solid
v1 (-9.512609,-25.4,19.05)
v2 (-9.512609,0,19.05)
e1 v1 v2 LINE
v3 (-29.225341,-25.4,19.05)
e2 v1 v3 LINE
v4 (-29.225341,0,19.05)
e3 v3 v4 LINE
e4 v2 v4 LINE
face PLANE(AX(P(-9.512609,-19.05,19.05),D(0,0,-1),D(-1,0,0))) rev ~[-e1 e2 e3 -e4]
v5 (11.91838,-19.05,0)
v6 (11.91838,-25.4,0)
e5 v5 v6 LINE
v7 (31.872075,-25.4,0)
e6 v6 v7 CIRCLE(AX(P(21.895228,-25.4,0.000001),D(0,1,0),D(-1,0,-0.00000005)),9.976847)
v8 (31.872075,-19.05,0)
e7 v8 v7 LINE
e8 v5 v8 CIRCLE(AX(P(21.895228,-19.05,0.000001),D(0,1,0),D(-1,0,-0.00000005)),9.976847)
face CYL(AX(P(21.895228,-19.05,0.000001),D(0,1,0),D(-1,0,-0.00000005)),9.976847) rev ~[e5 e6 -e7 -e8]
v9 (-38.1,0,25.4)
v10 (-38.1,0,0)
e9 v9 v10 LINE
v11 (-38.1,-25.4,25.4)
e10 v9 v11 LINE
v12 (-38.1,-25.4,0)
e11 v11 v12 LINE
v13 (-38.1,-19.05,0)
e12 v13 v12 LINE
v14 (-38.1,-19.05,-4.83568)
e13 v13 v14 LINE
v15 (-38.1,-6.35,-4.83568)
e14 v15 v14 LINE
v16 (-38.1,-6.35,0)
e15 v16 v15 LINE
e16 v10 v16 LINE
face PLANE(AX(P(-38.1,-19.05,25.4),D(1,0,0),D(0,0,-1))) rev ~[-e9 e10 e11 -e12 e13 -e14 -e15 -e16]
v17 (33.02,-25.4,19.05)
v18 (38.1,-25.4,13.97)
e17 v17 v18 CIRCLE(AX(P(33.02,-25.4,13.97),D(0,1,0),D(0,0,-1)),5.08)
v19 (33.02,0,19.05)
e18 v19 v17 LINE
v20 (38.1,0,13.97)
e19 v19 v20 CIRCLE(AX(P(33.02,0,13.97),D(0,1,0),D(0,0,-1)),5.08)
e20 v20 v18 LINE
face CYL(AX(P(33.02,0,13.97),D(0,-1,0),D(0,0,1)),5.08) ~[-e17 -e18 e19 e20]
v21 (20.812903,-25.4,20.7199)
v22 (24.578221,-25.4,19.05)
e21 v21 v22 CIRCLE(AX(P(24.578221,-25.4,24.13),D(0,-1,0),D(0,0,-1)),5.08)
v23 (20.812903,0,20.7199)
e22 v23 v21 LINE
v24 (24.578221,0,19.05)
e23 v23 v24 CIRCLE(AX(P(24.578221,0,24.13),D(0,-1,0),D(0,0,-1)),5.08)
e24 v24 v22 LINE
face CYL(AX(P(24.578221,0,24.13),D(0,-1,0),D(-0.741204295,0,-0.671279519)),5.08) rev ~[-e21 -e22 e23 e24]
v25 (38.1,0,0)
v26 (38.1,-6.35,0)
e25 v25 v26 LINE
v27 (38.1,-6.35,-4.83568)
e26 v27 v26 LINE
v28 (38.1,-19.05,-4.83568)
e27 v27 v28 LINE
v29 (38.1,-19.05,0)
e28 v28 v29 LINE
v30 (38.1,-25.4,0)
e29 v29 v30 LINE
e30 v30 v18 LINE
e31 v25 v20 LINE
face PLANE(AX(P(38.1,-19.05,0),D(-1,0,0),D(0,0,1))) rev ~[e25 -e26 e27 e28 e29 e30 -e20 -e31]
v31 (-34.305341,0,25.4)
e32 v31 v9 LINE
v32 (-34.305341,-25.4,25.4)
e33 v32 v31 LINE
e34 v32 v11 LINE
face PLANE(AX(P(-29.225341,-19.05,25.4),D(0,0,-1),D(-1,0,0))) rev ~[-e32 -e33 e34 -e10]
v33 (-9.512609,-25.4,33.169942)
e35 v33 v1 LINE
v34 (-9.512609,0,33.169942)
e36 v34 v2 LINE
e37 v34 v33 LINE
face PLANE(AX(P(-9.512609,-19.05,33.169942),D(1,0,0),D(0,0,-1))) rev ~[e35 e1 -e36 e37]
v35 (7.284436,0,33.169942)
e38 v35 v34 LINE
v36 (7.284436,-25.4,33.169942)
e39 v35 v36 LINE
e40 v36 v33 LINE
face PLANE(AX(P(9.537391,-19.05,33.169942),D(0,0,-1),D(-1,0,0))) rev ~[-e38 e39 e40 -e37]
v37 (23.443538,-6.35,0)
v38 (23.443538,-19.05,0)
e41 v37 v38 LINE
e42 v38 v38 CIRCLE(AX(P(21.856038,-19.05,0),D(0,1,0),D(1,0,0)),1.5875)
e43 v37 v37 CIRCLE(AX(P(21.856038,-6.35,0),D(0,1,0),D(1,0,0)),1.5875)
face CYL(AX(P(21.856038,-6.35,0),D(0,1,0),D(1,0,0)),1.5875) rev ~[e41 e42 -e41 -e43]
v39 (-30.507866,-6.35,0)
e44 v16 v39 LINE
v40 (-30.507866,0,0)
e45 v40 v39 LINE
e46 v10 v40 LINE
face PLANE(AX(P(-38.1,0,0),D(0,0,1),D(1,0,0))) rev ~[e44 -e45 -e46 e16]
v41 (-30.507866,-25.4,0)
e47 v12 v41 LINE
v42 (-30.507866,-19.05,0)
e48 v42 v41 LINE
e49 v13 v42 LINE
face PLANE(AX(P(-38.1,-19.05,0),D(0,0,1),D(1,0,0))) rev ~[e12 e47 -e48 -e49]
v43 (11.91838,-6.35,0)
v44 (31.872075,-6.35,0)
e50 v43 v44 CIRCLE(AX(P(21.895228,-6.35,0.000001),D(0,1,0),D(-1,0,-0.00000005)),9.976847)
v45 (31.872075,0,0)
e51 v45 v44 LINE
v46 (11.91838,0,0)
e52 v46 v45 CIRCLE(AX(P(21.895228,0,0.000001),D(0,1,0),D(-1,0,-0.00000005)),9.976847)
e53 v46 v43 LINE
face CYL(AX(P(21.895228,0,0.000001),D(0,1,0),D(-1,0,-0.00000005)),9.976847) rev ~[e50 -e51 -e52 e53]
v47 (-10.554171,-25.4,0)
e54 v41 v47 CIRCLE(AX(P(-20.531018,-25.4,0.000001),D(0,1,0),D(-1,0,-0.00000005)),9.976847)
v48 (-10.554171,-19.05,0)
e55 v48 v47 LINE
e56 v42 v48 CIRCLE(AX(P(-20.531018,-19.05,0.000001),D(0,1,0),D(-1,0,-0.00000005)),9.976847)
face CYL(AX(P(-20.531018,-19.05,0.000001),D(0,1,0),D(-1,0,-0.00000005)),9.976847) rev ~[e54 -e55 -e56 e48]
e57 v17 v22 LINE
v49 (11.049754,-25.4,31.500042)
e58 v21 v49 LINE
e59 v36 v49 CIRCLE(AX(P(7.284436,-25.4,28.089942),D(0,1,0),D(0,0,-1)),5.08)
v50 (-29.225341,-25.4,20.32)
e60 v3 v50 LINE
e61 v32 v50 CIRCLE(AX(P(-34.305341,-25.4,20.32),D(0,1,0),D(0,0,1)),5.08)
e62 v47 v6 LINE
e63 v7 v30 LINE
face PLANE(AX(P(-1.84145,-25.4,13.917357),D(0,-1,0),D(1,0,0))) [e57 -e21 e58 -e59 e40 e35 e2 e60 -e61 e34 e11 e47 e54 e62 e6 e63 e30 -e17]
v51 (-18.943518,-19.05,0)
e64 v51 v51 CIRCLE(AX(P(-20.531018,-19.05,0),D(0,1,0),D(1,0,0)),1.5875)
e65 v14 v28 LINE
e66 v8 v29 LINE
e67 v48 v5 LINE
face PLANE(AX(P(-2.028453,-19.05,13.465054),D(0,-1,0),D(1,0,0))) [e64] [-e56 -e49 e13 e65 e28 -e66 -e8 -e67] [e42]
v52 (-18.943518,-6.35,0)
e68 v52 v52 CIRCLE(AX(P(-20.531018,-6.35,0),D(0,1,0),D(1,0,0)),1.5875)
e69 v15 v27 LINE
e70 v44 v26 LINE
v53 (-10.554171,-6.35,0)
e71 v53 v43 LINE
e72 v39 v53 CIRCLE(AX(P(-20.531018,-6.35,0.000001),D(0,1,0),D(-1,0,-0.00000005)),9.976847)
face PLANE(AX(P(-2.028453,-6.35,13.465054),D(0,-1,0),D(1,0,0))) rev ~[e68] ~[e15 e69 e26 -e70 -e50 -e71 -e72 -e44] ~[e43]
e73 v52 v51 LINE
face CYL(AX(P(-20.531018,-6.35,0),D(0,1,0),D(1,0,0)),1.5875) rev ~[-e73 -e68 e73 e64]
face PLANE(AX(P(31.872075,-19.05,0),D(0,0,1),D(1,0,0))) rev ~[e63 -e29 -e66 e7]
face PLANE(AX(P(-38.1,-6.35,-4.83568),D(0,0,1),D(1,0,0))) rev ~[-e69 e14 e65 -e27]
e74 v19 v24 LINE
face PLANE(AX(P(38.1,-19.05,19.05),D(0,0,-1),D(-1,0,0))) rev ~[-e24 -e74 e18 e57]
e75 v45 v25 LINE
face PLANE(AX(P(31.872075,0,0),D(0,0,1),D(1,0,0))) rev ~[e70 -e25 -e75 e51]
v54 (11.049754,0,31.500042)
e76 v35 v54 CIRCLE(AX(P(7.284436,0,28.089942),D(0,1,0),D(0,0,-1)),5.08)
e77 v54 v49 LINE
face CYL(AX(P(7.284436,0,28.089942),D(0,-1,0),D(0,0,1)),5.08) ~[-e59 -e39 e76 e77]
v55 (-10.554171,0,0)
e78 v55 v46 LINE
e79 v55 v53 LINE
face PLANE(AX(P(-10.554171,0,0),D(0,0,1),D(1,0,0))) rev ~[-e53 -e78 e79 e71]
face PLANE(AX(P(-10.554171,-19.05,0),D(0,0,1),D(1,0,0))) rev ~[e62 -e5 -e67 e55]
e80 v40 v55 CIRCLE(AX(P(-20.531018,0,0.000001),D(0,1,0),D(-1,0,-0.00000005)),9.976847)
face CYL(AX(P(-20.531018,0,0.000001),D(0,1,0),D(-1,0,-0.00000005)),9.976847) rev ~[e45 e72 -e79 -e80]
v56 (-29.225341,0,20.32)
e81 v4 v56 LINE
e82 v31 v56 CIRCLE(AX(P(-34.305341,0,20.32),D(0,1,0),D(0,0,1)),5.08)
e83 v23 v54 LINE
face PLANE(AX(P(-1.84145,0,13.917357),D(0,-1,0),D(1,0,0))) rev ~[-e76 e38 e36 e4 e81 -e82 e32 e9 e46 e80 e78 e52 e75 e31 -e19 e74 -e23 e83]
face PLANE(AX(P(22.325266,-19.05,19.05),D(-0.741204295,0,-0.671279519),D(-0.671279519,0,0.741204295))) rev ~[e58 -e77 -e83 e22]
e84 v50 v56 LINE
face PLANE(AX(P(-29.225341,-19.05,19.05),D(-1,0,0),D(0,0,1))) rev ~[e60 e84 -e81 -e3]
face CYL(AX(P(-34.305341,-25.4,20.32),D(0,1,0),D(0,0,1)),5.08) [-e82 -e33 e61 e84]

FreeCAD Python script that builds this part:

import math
import FreeCAD as App
import Part
import Sketcher
from FreeCAD import Vector
Q = App.Units.Quantity


def edges_at(feature, points):
    """Names of the edges that pass closest to the given points."""
    edges = feature.Shape.Edges
    near = lambda p: min(range(len(edges)), key=lambda i: edges[i].distToShape(Part.Vertex(*p))[0])
    return sorted({f"Edge{near(p) + 1}" for p in points})

doc = App.newDocument("Part")
params = doc.addObject("Spreadsheet::Sheet", "Params")
for row, (alias, value) in enumerate([
    ("sketch1_height", "1 in"),
    ("sketch1_width", "0.75 in"),
    ("sketch1_length", "0.75 in"),
    ("pad1_length", "0.25 in"),
    ("sketch2_width", "3 in"),
    ("sketch2_diameter", "0.125 in"),
    ("sketch2_width2", "0.75 in"),
    ("sketch2_height", "0.25 in"),
    ("sketch2_length", "0.75 in"),
    ("pad2_length", "0.5 in"),
    ("sketch3_height", "1 in"),
    ("sketch3_width", "0.75 in"),
    ("sketch3_length", "0.75 in"),
    ("pad3_length", "0.25 in"),
    ("fillet_radius", "0.2 in"),
    ("fillet2_radius", "0.2 in"),
    ("fillet3_radius", "0.2 in"),
], start=1):
    params.set(f"A{row}", alias)
    params.set(f"B{row}", "=" + value)
    params.setAlias(f"B{row}", alias)

body = doc.addObject("PartDesign::Body", "Body")

sketch1 = doc.addObject("Sketcher::SketchObject", "Sketch")
body.addObject(sketch1)
sketch1.AttachmentSupport = (doc.XZ_Plane, [""])
sketch1.MapMode = "FlatFace"
sketch1.addGeometry(Part.LineSegment(Vector(-29.225341, 25.4, 0), Vector(-38.1, 25.4, 0)), False)
sketch1.addGeometry(Part.LineSegment(Vector(-38.1, 25.4, 0), Vector(-38.1, 0, 0)), False)
sketch1.addGeometry(Part.LineSegment(Vector(-38.1, 0, 0), Vector(-30.507866, 0, 0)), False)
sketch1.addGeometry(Part.ArcOfCircle(Part.Circle(Vector(-20.531018, 0, 0), Vector(0, 0, 1), 9.976847), math.radians(-0.000003), math.radians(180.000003)), False)
sketch1.addGeometry(Part.LineSegment(Vector(-10.554171, 0, 0), Vector(11.91838, 0, 0)), False)
sketch1.addGeometry(Part.ArcOfCircle(Part.Circle(Vector(21.895228, 0, 0), Vector(0, 0, 1), 9.976847), math.radians(-0.000003), math.radians(180.000003)), False)
sketch1.addGeometry(Part.LineSegment(Vector(31.872075, 0, 0), Vector(38.1, 0, 0)), False)
sketch1.addGeometry(Part.LineSegment(Vector(38.1, 0, 0), Vector(38.1, 19.05, 0)), False)
sketch1.addGeometry(Part.LineSegment(Vector(38.1, 19.05, 0), Vector(22.325266, 19.05, 0)), False)
sketch1.addGeometry(Part.LineSegment(Vector(22.325266, 19.05, 0), Vector(9.537391, 33.169942, 0)), False)
sketch1.addGeometry(Part.LineSegment(Vector(9.537391, 33.169942, 0), Vector(-9.512609, 33.169942, 0)), False)
sketch1.addGeometry(Part.LineSegment(Vector(-9.512609, 33.169942, 0), Vector(-9.512609, 19.05, 0)), False)
sketch1.addGeometry(Part.LineSegment(Vector(-9.512609, 19.05, 0), Vector(-29.225341, 19.05, 0)), False)
sketch1.addGeometry(Part.LineSegment(Vector(-29.225341, 19.05, 0), Vector(-29.225341, 25.4, 0)), False)
sketch1.addConstraint(Sketcher.Constraint("Coincident", 0, 2, 1, 1))
sketch1.addConstraint(Sketcher.Constraint("Coincident", 1, 2, 2, 1))
sketch1.addConstraint(Sketcher.Constraint("Coincident", 2, 2, 3, 2))
sketch1.addConstraint(Sketcher.Constraint("Coincident", 3, 1, 4, 1))
sketch1.addConstraint(Sketcher.Constraint("Coincident", 4, 2, 5, 2))
sketch1.addConstraint(Sketcher.Constraint("Coincident", 5, 1, 6, 1))
sketch1.addConstraint(Sketcher.Constraint("Coincident", 6, 2, 7, 1))
sketch1.addConstraint(Sketcher.Constraint("Coincident", 7, 2, 8, 1))
sketch1.addConstraint(Sketcher.Constraint("Coincident", 8, 2, 9, 1))
sketch1.addConstraint(Sketcher.Constraint("Coincident", 9, 2, 10, 1))
sketch1.addConstraint(Sketcher.Constraint("Coincident", 10, 2, 11, 1))
sketch1.addConstraint(Sketcher.Constraint("Coincident", 11, 2, 12, 1))
sketch1.addConstraint(Sketcher.Constraint("Coincident", 12, 2, 13, 1))
sketch1.addConstraint(Sketcher.Constraint("Coincident", 13, 2, 0, 1))
sketch1.addConstraint(Sketcher.Constraint("Horizontal", 0))
sketch1.addConstraint(Sketcher.Constraint("Vertical", 1))
sketch1.addConstraint(Sketcher.Constraint("Horizontal", 2))
sketch1.addConstraint(Sketcher.Constraint("Horizontal", 4))
sketch1.addConstraint(Sketcher.Constraint("Horizontal", 6))
sketch1.addConstraint(Sketcher.Constraint("Vertical", 7))
sketch1.addConstraint(Sketcher.Constraint("Horizontal", 8))
sketch1.addConstraint(Sketcher.Constraint("Horizontal", 10))
sketch1.addConstraint(Sketcher.Constraint("Vertical", 11))
sketch1.addConstraint(Sketcher.Constraint("Horizontal", 12))
sketch1.addConstraint(Sketcher.Constraint("Vertical", 13))
sketch1.addConstraint(Sketcher.Constraint("Equal", 3, 5))
sketch1.addConstraint(Sketcher.Constraint("Symmetric", 1, 2, 6, 2, -1, 1))
sketch1.addConstraint(Sketcher.Constraint("PointOnObject", 3, 3, -1))
sketch1.addConstraint(Sketcher.Constraint("PointOnObject", 5, 3, -1))
sketch1.addConstraint(Sketcher.Constraint("PointOnObject", 1, 2, -1))
sketch1.addConstraint(Sketcher.Constraint("PointOnObject", 3, 1, -1))
sketch1.addConstraint(Sketcher.Constraint("Horizontal", 8, 2, 11, 2))
sketch1.addConstraint(Sketcher.Constraint("Equal", 10, 7))
sketch1.addConstraint(Sketcher.Constraint("DistanceY", 1, 2, 1, 1, Q("1 in")))
sketch1.addConstraint(Sketcher.Constraint("DistanceX", 10, 2, 10, 1, Q("0.75 in")))
sketch1.addConstraint(Sketcher.Constraint("DistanceX", 0, 2, -1, 1, Q("1.5 in")))
sketch1.addConstraint(Sketcher.Constraint("Distance", 9, Q("0.75 in")))
sketch1.addConstraint(Sketcher.Constraint("Radius", 3, Q("9.976847 mm")))
sketch1.addConstraint(Sketcher.Constraint("DistanceX", 0, 2, 0, 1, Q("8.874659 mm")))
sketch1.addConstraint(Sketcher.Constraint("DistanceX", 4, 1, 4, 2, Q("22.472551 mm")))
sketch1.addConstraint(Sketcher.Constraint("DistanceY", 11, 2, 11, 1, Q("14.119942 mm")))
sketch1.addConstraint(Sketcher.Constraint("DistanceX", 2, 1, 2, 2, Q("7.592134 mm")))
sketch1.addConstraint(Sketcher.Constraint("DistanceX", 8, 2, 8, 1, Q("15.774734 mm")))
sketch1.setExpression("Constraints[33]", "Params.sketch1_height")
sketch1.setExpression("Constraints[34]", "Params.sketch1_width")
sketch1.setExpression("Constraints[36]", "Params.sketch1_length")
pad1 = doc.addObject("PartDesign::Pad", "Pad")
body.addObject(pad1)
pad1.Profile = sketch1
pad1.setExpression("Length", "Params.pad1_length")

sketch2 = doc.addObject("Sketcher::SketchObject", "Sketch001")
body.addObject(sketch2)
sketch2.AttachmentSupport = (doc.XZ_Plane, [""])
sketch2.MapMode = "FlatFace"
sketch2.AttachmentOffset = App.Placement(Vector(0, 0, 0.25 * 25.4), App.Rotation())
sketch2.addGeometry(Part.LineSegment(Vector(-29.225341, 25.4, 0), Vector(-38.1, 25.4, 0)), False)
sketch2.addGeometry(Part.LineSegment(Vector(-38.1, 25.4, 0), Vector(-38.1, -4.83568, 0)), False)
sketch2.addGeometry(Part.LineSegment(Vector(-38.1, -4.83568, 0), Vector(38.1, -4.83568, 0)), False)
sketch2.addGeometry(Part.LineSegment(Vector(38.1, -4.83568, 0), Vector(38.1, 19.05, 0)), False)
sketch2.addGeometry(Part.LineSegment(Vector(38.1, 19.05, 0), Vector(22.325266, 19.05, 0)), False)
sketch2.addGeometry(Part.LineSegment(Vector(22.325266, 19.05, 0), Vector(9.537391, 33.169942, 0)), False)
sketch2.addGeometry(Part.LineSegment(Vector(9.537391, 33.169942, 0), Vector(-9.512609, 33.169942, 0)), False)
sketch2.addGeometry(Part.LineSegment(Vector(-9.512609, 33.169942, 0), Vector(-9.512609, 19.05, 0)), False)
sketch2.addGeometry(Part.LineSegment(Vector(-9.512609, 19.05, 0), Vector(-29.225341, 19.05, 0)), False)
sketch2.addGeometry(Part.LineSegment(Vector(-29.225341, 19.05, 0), Vector(-29.225341, 25.4, 0)), False)
sketch2.addGeometry(Part.Circle(Vector(-20.531018, 0, 0), Vector(0, 0, 1), 1.5875), False)
sketch2.addGeometry(Part.Circle(Vector(21.856038, 0, 0), Vector(0, 0, 1), 1.5875), False)
sketch2.addConstraint(Sketcher.Constraint("Coincident", 0, 2, 1, 1))
sketch2.addConstraint(Sketcher.Constraint("Coincident", 1, 2, 2, 1))
sketch2.addConstraint(Sketcher.Constraint("Coincident", 2, 2, 3, 1))
sketch2.addConstraint(Sketcher.Constraint("Coincident", 3, 2, 4, 1))
sketch2.addConstraint(Sketcher.Constraint("Coincident", 4, 2, 5, 1))
sketch2.addConstraint(Sketcher.Constraint("Coincident", 5, 2, 6, 1))
sketch2.addConstraint(Sketcher.Constraint("Coincident", 6, 2, 7, 1))
sketch2.addConstraint(Sketcher.Constraint("Coincident", 7, 2, 8, 1))
sketch2.addConstraint(Sketcher.Constraint("Coincident", 8, 2, 9, 1))
sketch2.addConstraint(Sketcher.Constraint("Coincident", 9, 2, 0, 1))
sketch2.addConstraint(Sketcher.Constraint("Horizontal", 0))
sketch2.addConstraint(Sketcher.Constraint("Vertical", 1))
sketch2.addConstraint(Sketcher.Constraint("Horizontal", 2))
sketch2.addConstraint(Sketcher.Constraint("Vertical", 3))
sketch2.addConstraint(Sketcher.Constraint("Horizontal", 4))
sketch2.addConstraint(Sketcher.Constraint("Horizontal", 6))
sketch2.addConstraint(Sketcher.Constraint("Vertical", 7))
sketch2.addConstraint(Sketcher.Constraint("Horizontal", 8))
sketch2.addConstraint(Sketcher.Constraint("Vertical", 9))
sketch2.addConstraint(Sketcher.Constraint("Equal", 10, 11))
sketch2.addConstraint(Sketcher.Constraint("PointOnObject", 10, 3, -1))
sketch2.addConstraint(Sketcher.Constraint("PointOnObject", 11, 3, -1))
sketch2.addConstraint(Sketcher.Constraint("Horizontal", 4, 2, 7, 2))
sketch2.addConstraint(Sketcher.Constraint("DistanceX", 2, 1, 2, 2, Q("3 in")))
sketch2.addConstraint(Sketcher.Constraint("Diameter", 10, Q("0.125 in")))
sketch2.addConstraint(Sketcher.Constraint("DistanceY", -1, 1, 0, 2, Q("1 in")))
sketch2.addConstraint(Sketcher.Constraint("DistanceX", 6, 2, 6, 1, Q("0.75 in")))
sketch2.addConstraint(Sketcher.Constraint("DistanceY", 9, 1, 9, 2, Q("0.25 in")))
sketch2.addConstraint(Sketcher.Constraint("DistanceX", 0, 2, -1, 1, Q("1.5 in")))
sketch2.addConstraint(Sketcher.Constraint("Distance", 5, Q("0.75 in")))
sketch2.addConstraint(Sketcher.Constraint("DistanceX", 0, 2, 0, 1, Q("8.874659 mm")))
sketch2.addConstraint(Sketcher.Constraint("DistanceY", 1, 2, 1, 1, Q("30.23568 mm")))
sketch2.addConstraint(Sketcher.Constraint("DistanceY", 7, 2, 7, 1, Q("14.119942 mm")))
sketch2.addConstraint(Sketcher.Constraint("DistanceX", 4, 2, 4, 1, Q("15.774734 mm")))
sketch2.addConstraint(Sketcher.Constraint("DistanceX", -1, 1, 11, 3, Q("21.856038 mm")))
sketch2.addConstraint(Sketcher.Constraint("DistanceX", 10, 3, 5, 2, Q("30.068409 mm")))
sketch2.setExpression("Constraints[23]", "Params.sketch2_width")
sketch2.setExpression("Constraints[24]", "Params.sketch2_diameter")
sketch2.setExpression("Constraints[26]", "Params.sketch2_width2")
sketch2.setExpression("Constraints[27]", "Params.sketch2_height")
sketch2.setExpression("Constraints[29]", "Params.sketch2_length")
pad2 = doc.addObject("PartDesign::Pad", "Pad001")
body.addObject(pad2)
pad2.Profile = sketch2
pad2.setExpression("Length", "Params.pad2_length")

sketch3 = doc.addObject("Sketcher::SketchObject", "Sketch002")
body.addObject(sketch3)
sketch3.AttachmentSupport = (doc.XZ_Plane, [""])
sketch3.MapMode = "FlatFace"
sketch3.AttachmentOffset = App.Placement(Vector(0, 0, 0.75 * 25.4), App.Rotation())
sketch3.addGeometry(Part.LineSegment(Vector(-29.225341, 25.4, 0), Vector(-38.1, 25.4, 0)), False)
sketch3.addGeometry(Part.LineSegment(Vector(-38.1, 25.4, 0), Vector(-38.1, 0, 0)), False)
sketch3.addGeometry(Part.LineSegment(Vector(-38.1, 0, 0), Vector(-30.507866, 0, 0)), False)
sketch3.addGeometry(Part.ArcOfCircle(Part.Circle(Vector(-20.531018, 0, 0), Vector(0, 0, 1), 9.976847), math.radians(-0.000003), math.radians(180.000003)), False)
sketch3.addGeometry(Part.LineSegment(Vector(-10.554171, 0, 0), Vector(11.91838, 0, 0)), False)
sketch3.addGeometry(Part.ArcOfCircle(Part.Circle(Vector(21.895228, 0, 0), Vector(0, 0, 1), 9.976847), math.radians(-0.000003), math.radians(180.000003)), False)
sketch3.addGeometry(Part.LineSegment(Vector(31.872075, 0, 0), Vector(38.1, 0, 0)), False)
sketch3.addGeometry(Part.LineSegment(Vector(38.1, 0, 0), Vector(38.1, 19.05, 0)), False)
sketch3.addGeometry(Part.LineSegment(Vector(38.1, 19.05, 0), Vector(22.325266, 19.05, 0)), False)
sketch3.addGeometry(Part.LineSegment(Vector(22.325266, 19.05, 0), Vector(9.537391, 33.169942, 0)), False)
sketch3.addGeometry(Part.LineSegment(Vector(9.537391, 33.169942, 0), Vector(-9.512609, 33.169942, 0)), False)
sketch3.addGeometry(Part.LineSegment(Vector(-9.512609, 33.169942, 0), Vector(-9.512609, 19.05, 0)), False)
sketch3.addGeometry(Part.LineSegment(Vector(-9.512609, 19.05, 0), Vector(-29.225341, 19.05, 0)), False)
sketch3.addGeometry(Part.LineSegment(Vector(-29.225341, 19.05, 0), Vector(-29.225341, 25.4, 0)), False)
sketch3.addConstraint(Sketcher.Constraint("Coincident", 0, 2, 1, 1))
sketch3.addConstraint(Sketcher.Constraint("Coincident", 1, 2, 2, 1))
sketch3.addConstraint(Sketcher.Constraint("Coincident", 2, 2, 3, 2))
sketch3.addConstraint(Sketcher.Constraint("Coincident", 3, 1, 4, 1))
sketch3.addConstraint(Sketcher.Constraint("Coincident", 4, 2, 5, 2))
sketch3.addConstraint(Sketcher.Constraint("Coincident", 5, 1, 6, 1))
sketch3.addConstraint(Sketcher.Constraint("Coincident", 6, 2, 7, 1))
sketch3.addConstraint(Sketcher.Constraint("Coincident", 7, 2, 8, 1))
sketch3.addConstraint(Sketcher.Constraint("Coincident", 8, 2, 9, 1))
sketch3.addConstraint(Sketcher.Constraint("Coincident", 9, 2, 10, 1))
sketch3.addConstraint(Sketcher.Constraint("Coincident", 10, 2, 11, 1))
sketch3.addConstraint(Sketcher.Constraint("Coincident", 11, 2, 12, 1))
sketch3.addConstraint(Sketcher.Constraint("Coincident", 12, 2, 13, 1))
sketch3.addConstraint(Sketcher.Constraint("Coincident", 13, 2, 0, 1))
sketch3.addConstraint(Sketcher.Constraint("Horizontal", 0))
sketch3.addConstraint(Sketcher.Constraint("Vertical", 1))
sketch3.addConstraint(Sketcher.Constraint("Horizontal", 2))
sketch3.addConstraint(Sketcher.Constraint("Horizontal", 4))
sketch3.addConstraint(Sketcher.Constraint("Horizontal", 6))
sketch3.addConstraint(Sketcher.Constraint("Vertical", 7))
sketch3.addConstraint(Sketcher.Constraint("Horizontal", 8))
sketch3.addConstraint(Sketcher.Constraint("Horizontal", 10))
sketch3.addConstraint(Sketcher.Constraint("Vertical", 11))
sketch3.addConstraint(Sketcher.Constraint("Horizontal", 12))
sketch3.addConstraint(Sketcher.Constraint("Vertical", 13))
sketch3.addConstraint(Sketcher.Constraint("Equal", 3, 5))
sketch3.addConstraint(Sketcher.Constraint("Symmetric", 1, 2, 6, 2, -1, 1))
sketch3.addConstraint(Sketcher.Constraint("PointOnObject", 3, 3, -1))
sketch3.addConstraint(Sketcher.Constraint("PointOnObject", 5, 3, -1))
sketch3.addConstraint(Sketcher.Constraint("PointOnObject", 1, 2, -1))
sketch3.addConstraint(Sketcher.Constraint("PointOnObject", 3, 1, -1))
sketch3.addConstraint(Sketcher.Constraint("Horizontal", 8, 2, 11, 2))
sketch3.addConstraint(Sketcher.Constraint("Equal", 10, 7))
sketch3.addConstraint(Sketcher.Constraint("DistanceY", 1, 2, 1, 1, Q("1 in")))
sketch3.addConstraint(Sketcher.Constraint("DistanceX", 10, 2, 10, 1, Q("0.75 in")))
sketch3.addConstraint(Sketcher.Constraint("DistanceX", 0, 2, -1, 1, Q("1.5 in")))
sketch3.addConstraint(Sketcher.Constraint("Distance", 9, Q("0.75 in")))
sketch3.addConstraint(Sketcher.Constraint("Radius", 3, Q("9.976847 mm")))
sketch3.addConstraint(Sketcher.Constraint("DistanceX", 0, 2, 0, 1, Q("8.874659 mm")))
sketch3.addConstraint(Sketcher.Constraint("DistanceX", 4, 1, 4, 2, Q("22.472551 mm")))
sketch3.addConstraint(Sketcher.Constraint("DistanceY", 11, 2, 11, 1, Q("14.119942 mm")))
sketch3.addConstraint(Sketcher.Constraint("DistanceX", 2, 1, 2, 2, Q("7.592134 mm")))
sketch3.addConstraint(Sketcher.Constraint("DistanceX", 8, 2, 8, 1, Q("15.774734 mm")))
sketch3.setExpression("Constraints[33]", "Params.sketch3_height")
sketch3.setExpression("Constraints[34]", "Params.sketch3_width")
sketch3.setExpression("Constraints[36]", "Params.sketch3_length")
pad3 = doc.addObject("PartDesign::Pad", "Pad002")
body.addObject(pad3)
pad3.Profile = sketch3
pad3.setExpression("Length", "Params.pad3_length")
doc.recompute()

fillet = doc.addObject("PartDesign::Fillet", "Fillet")
body.addObject(fillet)
fillet.Base = (pad3, edges_at(pad3, [(-29.225, -12.7, 25.4)]))
fillet.setExpression("Radius", "Params.fillet_radius")
doc.recompute()

fillet2 = doc.addObject("PartDesign::Fillet", "Fillet001")
body.addObject(fillet2)
fillet2.Base = (fillet, edges_at(fillet, [(9.537, -12.7, 33.17)]))
fillet2.setExpression("Radius", "Params.fillet2_radius")
doc.recompute()

fillet3 = doc.addObject("PartDesign::Fillet", "Fillet002")
body.addObject(fillet3)
fillet3.Base = (fillet2, edges_at(fillet2, [(22.325, -12.7, 19.05), (38.1, -12.7, 19.05)]))
fillet3.setExpression("Radius", "Params.fillet3_radius")

doc.recompute()
